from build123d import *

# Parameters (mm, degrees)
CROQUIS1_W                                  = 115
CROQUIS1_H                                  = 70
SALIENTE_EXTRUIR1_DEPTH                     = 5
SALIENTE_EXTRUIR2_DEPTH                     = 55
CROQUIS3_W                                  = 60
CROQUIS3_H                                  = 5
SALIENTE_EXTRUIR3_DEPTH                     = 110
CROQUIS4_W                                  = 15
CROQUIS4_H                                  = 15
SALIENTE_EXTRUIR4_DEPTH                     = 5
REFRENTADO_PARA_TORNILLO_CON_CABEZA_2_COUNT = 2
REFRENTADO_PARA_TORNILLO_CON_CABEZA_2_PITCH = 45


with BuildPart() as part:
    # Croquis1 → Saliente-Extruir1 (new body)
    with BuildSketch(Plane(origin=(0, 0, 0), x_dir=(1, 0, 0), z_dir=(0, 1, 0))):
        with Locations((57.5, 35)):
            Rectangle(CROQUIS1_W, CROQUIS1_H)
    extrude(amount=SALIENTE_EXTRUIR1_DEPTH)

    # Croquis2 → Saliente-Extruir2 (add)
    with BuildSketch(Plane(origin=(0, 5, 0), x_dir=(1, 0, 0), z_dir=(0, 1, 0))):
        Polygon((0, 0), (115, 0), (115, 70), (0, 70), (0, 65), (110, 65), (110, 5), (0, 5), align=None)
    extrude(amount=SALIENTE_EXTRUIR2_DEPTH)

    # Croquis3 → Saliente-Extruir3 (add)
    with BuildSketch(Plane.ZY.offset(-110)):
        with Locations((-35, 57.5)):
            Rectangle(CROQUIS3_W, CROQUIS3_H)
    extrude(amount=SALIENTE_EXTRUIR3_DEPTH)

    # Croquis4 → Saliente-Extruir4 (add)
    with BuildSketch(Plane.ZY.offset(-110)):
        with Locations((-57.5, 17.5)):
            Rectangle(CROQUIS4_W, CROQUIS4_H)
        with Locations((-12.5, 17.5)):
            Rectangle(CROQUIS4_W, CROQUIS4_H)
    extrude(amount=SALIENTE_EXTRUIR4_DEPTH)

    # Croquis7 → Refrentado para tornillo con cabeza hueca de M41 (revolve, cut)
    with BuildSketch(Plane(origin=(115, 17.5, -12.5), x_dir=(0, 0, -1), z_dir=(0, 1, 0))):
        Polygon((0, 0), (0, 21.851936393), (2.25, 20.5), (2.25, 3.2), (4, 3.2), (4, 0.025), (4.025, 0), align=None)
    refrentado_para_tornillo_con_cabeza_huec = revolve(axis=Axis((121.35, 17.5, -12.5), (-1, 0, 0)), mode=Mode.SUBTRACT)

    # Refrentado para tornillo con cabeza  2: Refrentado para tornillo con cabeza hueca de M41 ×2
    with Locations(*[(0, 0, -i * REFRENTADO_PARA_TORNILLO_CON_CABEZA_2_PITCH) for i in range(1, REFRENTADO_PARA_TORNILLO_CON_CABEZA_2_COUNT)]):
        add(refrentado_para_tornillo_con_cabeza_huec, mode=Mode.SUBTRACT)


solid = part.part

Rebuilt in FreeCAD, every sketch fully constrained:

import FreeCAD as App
import Part
import Sketcher
Q = App.Units.Quantity


def add_polygon(sketch, points):
    """Adds a closed chain of lines whose ends are joined by coincident constraints."""
    first, n = sketch.GeometryCount, len(points)
    for a, b in zip(points, points[1:] + points[:1]):
        sketch.addGeometry(Part.LineSegment(App.Vector(*a, 0), App.Vector(*b, 0)), False)
    for i in range(n):
        sketch.addConstraint(Sketcher.Constraint("Coincident", first + i, 2, first + (i + 1) % n, 1))

doc = App.newDocument("Part")
body = doc.addObject("PartDesign::Body", "Body")

sketch1 = body.newObject("Sketcher::SketchObject", "Sketch")
sketch1.AttachmentSupport = (doc.getObject("XZ_Plane"), [""])
sketch1.MapMode = "FlatFace"
add_polygon(sketch1, [(0, -70), (0, 0), (115, 0), (115, -70)])
sketch1.addConstraint(Sketcher.Constraint("Vertical", 0))
sketch1.addConstraint(Sketcher.Constraint("Horizontal", 1))
sketch1.addConstraint(Sketcher.Constraint("Vertical", 2))
sketch1.addConstraint(Sketcher.Constraint("Horizontal", 3))
sketch1.addConstraint(Sketcher.Constraint("Coincident", 0, 2, -1, 1))
sketch1.addConstraint(Sketcher.Constraint("DistanceX", 1, 1, 1, 2, Q("115 mm")))
sketch1.addConstraint(Sketcher.Constraint("DistanceY", 0, 1, 0, 2, Q("70 mm")))
pad1 = body.newObject("PartDesign::Pad", "Pad")
pad1.Profile = sketch1
pad1.Length = 5
pad1.Reversed = True

sketch2 = body.newObject("Sketcher::SketchObject", "Sketch001")
sketch2.AttachmentSupport = (doc.getObject("XZ_Plane"), [""])
sketch2.MapMode = "FlatFace"
sketch2.AttachmentOffset = App.Placement(App.Vector(0, 0, -5), App.Rotation())
add_polygon(sketch2, [(0, 0), (115, 0), (115, -70), (0, -70), (0, -65), (110, -65), (110, -5), (0, -5)])
sketch2.addConstraint(Sketcher.Constraint("Horizontal", 0))
sketch2.addConstraint(Sketcher.Constraint("Vertical", 1))
sketch2.addConstraint(Sketcher.Constraint("Horizontal", 2))
sketch2.addConstraint(Sketcher.Constraint("Vertical", 3))
sketch2.addConstraint(Sketcher.Constraint("Horizontal", 4))
sketch2.addConstraint(Sketcher.Constraint("Vertical", 5))
sketch2.addConstraint(Sketcher.Constraint("Horizontal", 6))
sketch2.addConstraint(Sketcher.Constraint("Vertical", 7))
sketch2.addConstraint(Sketcher.Constraint("Coincident", 7, 2, -1, 1))
sketch2.addConstraint(Sketcher.Constraint("PointOnObject", 2, 2, -2))
sketch2.addConstraint(Sketcher.Constraint("Equal", 3, 7))
sketch2.addConstraint(Sketcher.Constraint("DistanceX", 0, 1, 0, 2, Q("115 mm")))
sketch2.addConstraint(Sketcher.Constraint("DistanceX", 4, 1, 4, 2, Q("110 mm")))
sketch2.addConstraint(Sketcher.Constraint("DistanceY", 1, 2, 1, 1, Q("70 mm")))
sketch2.addConstraint(Sketcher.Constraint("DistanceY", 3, 1, 3, 2, Q("5 mm")))
pad2 = body.newObject("PartDesign::Pad", "Pad001")
pad2.Profile = sketch2
pad2.Length = 55
pad2.Reversed = True

sketch3 = body.newObject("Sketcher::SketchObject", "Sketch002")
sketch3.AttachmentSupport = (doc.getObject("YZ_Plane"), [""])
sketch3.MapMode = "FlatFace"
sketch3.AttachmentOffset = App.Placement(App.Vector(0, 0, 110), App.Rotation())
add_polygon(sketch3, [(60, -65), (55, -65), (55, -5), (60, -5)])
sketch3.addConstraint(Sketcher.Constraint("Horizontal", 0))
sketch3.addConstraint(Sketcher.Constraint("Vertical", 1))
sketch3.addConstraint(Sketcher.Constraint("Horizontal", 2))
sketch3.addConstraint(Sketcher.Constraint("Vertical", 3))
sketch3.addConstraint(Sketcher.Constraint("DistanceX", 0, 2, 0, 1, Q("5 mm")))
sketch3.addConstraint(Sketcher.Constraint("DistanceY", 1, 1, 1, 2, Q("60 mm")))
sketch3.addConstraint(Sketcher.Constraint("DistanceX", -1, 1, 0, 2, Q("55 mm")))
sketch3.addConstraint(Sketcher.Constraint("DistanceY", 0, 2, -1, 1, Q("65 mm")))
pad3 = body.newObject("PartDesign::Pad", "Pad002")
pad3.Profile = sketch3
pad3.Length = 110
pad3.Reversed = True

sketch4 = body.newObject("Sketcher::SketchObject", "Sketch003")
sketch4.AttachmentSupport = (doc.getObject("YZ_Plane"), [""])
sketch4.MapMode = "FlatFace"
sketch4.AttachmentOffset = App.Placement(App.Vector(0, 0, 110), App.Rotation())
add_polygon(sketch4, [(25, -65), (10, -65), (10, -50), (25, -50)])
add_polygon(sketch4, [(25, -20), (10, -20), (10, -5), (25, -5)])
sketch4.addConstraint(Sketcher.Constraint("Horizontal", 0))
sketch4.addConstraint(Sketcher.Constraint("Vertical", 1))
sketch4.addConstraint(Sketcher.Constraint("Horizontal", 2))
sketch4.addConstraint(Sketcher.Constraint("Vertical", 3))
sketch4.addConstraint(Sketcher.Constraint("Horizontal", 4))
sketch4.addConstraint(Sketcher.Constraint("Vertical", 5))
sketch4.addConstraint(Sketcher.Constraint("Horizontal", 6))
sketch4.addConstraint(Sketcher.Constraint("Vertical", 7))
sketch4.addConstraint(Sketcher.Constraint("Vertical", 1, 2, 4, 2))
sketch4.addConstraint(Sketcher.Constraint("Vertical", 3, 2, 6, 2))
sketch4.addConstraint(Sketcher.Constraint("Equal", 6, 1))
sketch4.addConstraint(Sketcher.Constraint("Equal", 3, 5))
sketch4.addConstraint(Sketcher.Constraint("DistanceX", 0, 2, 0, 1, Q("15 mm")))
sketch4.addConstraint(Sketcher.Constraint("DistanceX", -1, 1, 0, 2, Q("10 mm")))
sketch4.addConstraint(Sketcher.Constraint("DistanceY", 0, 2, -1, 1, Q("65 mm")))
sketch4.addConstraint(Sketcher.Constraint("DistanceY", 4, 2, -1, 1, Q("20 mm")))
pad4 = body.newObject("PartDesign::Pad", "Pad003")
pad4.Profile = sketch4
pad4.Length = 5
pad4.Reversed = True

sketch5 = body.newObject("Sketcher::SketchObject", "Sketch004")
sketch5.AttachmentSupport = (doc.getObject("XZ_Plane"), [""])
sketch5.MapMode = "FlatFace"
sketch5.AttachmentOffset = App.Placement(App.Vector(0, 0, -17.5), App.Rotation())
add_polygon(sketch5, [(93.148064, -12.5), (115, -12.5), (115, -16.525), (114.975, -16.5), (111.8, -16.5), (111.8, -14.75), (94.5, -14.75)])
sketch5.addGeometry(Part.LineSegment(App.Vector(115, -12.5, 0), App.Vector(93.148064, -12.5, 0)), True)
sketch5.addConstraint(Sketcher.Constraint("Horizontal", 0))
sketch5.addConstraint(Sketcher.Constraint("Vertical", 1))
sketch5.addConstraint(Sketcher.Constraint("Horizontal", 3))
sketch5.addConstraint(Sketcher.Constraint("Vertical", 4))
sketch5.addConstraint(Sketcher.Constraint("Horizontal", 5))
sketch5.addConstraint(Sketcher.Constraint("Horizontal", 7))
sketch5.addConstraint(Sketcher.Constraint("Coincident", 7, 1, 0, 2))
sketch5.addConstraint(Sketcher.Constraint("Equal", 0, 7))
sketch5.addConstraint(Sketcher.Constraint("Angle", 2, Q("135 deg")))
sketch5.addConstraint(Sketcher.Constraint("Angle", 6, Q("121 deg")))
sketch5.addConstraint(Sketcher.Constraint("DistanceX", 5, 2, 5, 1, Q("17.3 mm")))
sketch5.addConstraint(Sketcher.Constraint("DistanceX", -1, 1, 0, 2, Q("115 mm")))
sketch5.addConstraint(Sketcher.Constraint("DistanceY", 2, 2, 0, 2, Q("4 mm")))
sketch5.addConstraint(Sketcher.Constraint("DistanceY", 4, 1, 4, 2, Q("1.75 mm")))
sketch5.addConstraint(Sketcher.Constraint("DistanceY", 0, 2, -1, 1, Q("12.5 mm")))
sketch5.addConstraint(Sketcher.Constraint("DistanceX", -1, 1, 3, 2, Q("111.8 mm")))
sketch5.addConstraint(Sketcher.Constraint("DistanceX", 3, 2, 3, 1, Q("3.175 mm")))
groove = body.newObject("PartDesign::Groove", "Groove")
groove.Profile = sketch5
groove.ReferenceAxis = (sketch5, ["Axis0"])
groove.Angle = 360
doc.recompute()

linearpattern = body.newObject("PartDesign::LinearPattern", "LinearPattern")
linearpattern.Originals = [groove]
linearpattern.Direction = (doc.getObject("Z_Axis"), [""])
linearpattern.Mode = "offset"
linearpattern.Offset = 45
linearpattern.Occurrences = 2
linearpattern.Reversed = True
body.Tip = linearpattern

doc.recompute()
